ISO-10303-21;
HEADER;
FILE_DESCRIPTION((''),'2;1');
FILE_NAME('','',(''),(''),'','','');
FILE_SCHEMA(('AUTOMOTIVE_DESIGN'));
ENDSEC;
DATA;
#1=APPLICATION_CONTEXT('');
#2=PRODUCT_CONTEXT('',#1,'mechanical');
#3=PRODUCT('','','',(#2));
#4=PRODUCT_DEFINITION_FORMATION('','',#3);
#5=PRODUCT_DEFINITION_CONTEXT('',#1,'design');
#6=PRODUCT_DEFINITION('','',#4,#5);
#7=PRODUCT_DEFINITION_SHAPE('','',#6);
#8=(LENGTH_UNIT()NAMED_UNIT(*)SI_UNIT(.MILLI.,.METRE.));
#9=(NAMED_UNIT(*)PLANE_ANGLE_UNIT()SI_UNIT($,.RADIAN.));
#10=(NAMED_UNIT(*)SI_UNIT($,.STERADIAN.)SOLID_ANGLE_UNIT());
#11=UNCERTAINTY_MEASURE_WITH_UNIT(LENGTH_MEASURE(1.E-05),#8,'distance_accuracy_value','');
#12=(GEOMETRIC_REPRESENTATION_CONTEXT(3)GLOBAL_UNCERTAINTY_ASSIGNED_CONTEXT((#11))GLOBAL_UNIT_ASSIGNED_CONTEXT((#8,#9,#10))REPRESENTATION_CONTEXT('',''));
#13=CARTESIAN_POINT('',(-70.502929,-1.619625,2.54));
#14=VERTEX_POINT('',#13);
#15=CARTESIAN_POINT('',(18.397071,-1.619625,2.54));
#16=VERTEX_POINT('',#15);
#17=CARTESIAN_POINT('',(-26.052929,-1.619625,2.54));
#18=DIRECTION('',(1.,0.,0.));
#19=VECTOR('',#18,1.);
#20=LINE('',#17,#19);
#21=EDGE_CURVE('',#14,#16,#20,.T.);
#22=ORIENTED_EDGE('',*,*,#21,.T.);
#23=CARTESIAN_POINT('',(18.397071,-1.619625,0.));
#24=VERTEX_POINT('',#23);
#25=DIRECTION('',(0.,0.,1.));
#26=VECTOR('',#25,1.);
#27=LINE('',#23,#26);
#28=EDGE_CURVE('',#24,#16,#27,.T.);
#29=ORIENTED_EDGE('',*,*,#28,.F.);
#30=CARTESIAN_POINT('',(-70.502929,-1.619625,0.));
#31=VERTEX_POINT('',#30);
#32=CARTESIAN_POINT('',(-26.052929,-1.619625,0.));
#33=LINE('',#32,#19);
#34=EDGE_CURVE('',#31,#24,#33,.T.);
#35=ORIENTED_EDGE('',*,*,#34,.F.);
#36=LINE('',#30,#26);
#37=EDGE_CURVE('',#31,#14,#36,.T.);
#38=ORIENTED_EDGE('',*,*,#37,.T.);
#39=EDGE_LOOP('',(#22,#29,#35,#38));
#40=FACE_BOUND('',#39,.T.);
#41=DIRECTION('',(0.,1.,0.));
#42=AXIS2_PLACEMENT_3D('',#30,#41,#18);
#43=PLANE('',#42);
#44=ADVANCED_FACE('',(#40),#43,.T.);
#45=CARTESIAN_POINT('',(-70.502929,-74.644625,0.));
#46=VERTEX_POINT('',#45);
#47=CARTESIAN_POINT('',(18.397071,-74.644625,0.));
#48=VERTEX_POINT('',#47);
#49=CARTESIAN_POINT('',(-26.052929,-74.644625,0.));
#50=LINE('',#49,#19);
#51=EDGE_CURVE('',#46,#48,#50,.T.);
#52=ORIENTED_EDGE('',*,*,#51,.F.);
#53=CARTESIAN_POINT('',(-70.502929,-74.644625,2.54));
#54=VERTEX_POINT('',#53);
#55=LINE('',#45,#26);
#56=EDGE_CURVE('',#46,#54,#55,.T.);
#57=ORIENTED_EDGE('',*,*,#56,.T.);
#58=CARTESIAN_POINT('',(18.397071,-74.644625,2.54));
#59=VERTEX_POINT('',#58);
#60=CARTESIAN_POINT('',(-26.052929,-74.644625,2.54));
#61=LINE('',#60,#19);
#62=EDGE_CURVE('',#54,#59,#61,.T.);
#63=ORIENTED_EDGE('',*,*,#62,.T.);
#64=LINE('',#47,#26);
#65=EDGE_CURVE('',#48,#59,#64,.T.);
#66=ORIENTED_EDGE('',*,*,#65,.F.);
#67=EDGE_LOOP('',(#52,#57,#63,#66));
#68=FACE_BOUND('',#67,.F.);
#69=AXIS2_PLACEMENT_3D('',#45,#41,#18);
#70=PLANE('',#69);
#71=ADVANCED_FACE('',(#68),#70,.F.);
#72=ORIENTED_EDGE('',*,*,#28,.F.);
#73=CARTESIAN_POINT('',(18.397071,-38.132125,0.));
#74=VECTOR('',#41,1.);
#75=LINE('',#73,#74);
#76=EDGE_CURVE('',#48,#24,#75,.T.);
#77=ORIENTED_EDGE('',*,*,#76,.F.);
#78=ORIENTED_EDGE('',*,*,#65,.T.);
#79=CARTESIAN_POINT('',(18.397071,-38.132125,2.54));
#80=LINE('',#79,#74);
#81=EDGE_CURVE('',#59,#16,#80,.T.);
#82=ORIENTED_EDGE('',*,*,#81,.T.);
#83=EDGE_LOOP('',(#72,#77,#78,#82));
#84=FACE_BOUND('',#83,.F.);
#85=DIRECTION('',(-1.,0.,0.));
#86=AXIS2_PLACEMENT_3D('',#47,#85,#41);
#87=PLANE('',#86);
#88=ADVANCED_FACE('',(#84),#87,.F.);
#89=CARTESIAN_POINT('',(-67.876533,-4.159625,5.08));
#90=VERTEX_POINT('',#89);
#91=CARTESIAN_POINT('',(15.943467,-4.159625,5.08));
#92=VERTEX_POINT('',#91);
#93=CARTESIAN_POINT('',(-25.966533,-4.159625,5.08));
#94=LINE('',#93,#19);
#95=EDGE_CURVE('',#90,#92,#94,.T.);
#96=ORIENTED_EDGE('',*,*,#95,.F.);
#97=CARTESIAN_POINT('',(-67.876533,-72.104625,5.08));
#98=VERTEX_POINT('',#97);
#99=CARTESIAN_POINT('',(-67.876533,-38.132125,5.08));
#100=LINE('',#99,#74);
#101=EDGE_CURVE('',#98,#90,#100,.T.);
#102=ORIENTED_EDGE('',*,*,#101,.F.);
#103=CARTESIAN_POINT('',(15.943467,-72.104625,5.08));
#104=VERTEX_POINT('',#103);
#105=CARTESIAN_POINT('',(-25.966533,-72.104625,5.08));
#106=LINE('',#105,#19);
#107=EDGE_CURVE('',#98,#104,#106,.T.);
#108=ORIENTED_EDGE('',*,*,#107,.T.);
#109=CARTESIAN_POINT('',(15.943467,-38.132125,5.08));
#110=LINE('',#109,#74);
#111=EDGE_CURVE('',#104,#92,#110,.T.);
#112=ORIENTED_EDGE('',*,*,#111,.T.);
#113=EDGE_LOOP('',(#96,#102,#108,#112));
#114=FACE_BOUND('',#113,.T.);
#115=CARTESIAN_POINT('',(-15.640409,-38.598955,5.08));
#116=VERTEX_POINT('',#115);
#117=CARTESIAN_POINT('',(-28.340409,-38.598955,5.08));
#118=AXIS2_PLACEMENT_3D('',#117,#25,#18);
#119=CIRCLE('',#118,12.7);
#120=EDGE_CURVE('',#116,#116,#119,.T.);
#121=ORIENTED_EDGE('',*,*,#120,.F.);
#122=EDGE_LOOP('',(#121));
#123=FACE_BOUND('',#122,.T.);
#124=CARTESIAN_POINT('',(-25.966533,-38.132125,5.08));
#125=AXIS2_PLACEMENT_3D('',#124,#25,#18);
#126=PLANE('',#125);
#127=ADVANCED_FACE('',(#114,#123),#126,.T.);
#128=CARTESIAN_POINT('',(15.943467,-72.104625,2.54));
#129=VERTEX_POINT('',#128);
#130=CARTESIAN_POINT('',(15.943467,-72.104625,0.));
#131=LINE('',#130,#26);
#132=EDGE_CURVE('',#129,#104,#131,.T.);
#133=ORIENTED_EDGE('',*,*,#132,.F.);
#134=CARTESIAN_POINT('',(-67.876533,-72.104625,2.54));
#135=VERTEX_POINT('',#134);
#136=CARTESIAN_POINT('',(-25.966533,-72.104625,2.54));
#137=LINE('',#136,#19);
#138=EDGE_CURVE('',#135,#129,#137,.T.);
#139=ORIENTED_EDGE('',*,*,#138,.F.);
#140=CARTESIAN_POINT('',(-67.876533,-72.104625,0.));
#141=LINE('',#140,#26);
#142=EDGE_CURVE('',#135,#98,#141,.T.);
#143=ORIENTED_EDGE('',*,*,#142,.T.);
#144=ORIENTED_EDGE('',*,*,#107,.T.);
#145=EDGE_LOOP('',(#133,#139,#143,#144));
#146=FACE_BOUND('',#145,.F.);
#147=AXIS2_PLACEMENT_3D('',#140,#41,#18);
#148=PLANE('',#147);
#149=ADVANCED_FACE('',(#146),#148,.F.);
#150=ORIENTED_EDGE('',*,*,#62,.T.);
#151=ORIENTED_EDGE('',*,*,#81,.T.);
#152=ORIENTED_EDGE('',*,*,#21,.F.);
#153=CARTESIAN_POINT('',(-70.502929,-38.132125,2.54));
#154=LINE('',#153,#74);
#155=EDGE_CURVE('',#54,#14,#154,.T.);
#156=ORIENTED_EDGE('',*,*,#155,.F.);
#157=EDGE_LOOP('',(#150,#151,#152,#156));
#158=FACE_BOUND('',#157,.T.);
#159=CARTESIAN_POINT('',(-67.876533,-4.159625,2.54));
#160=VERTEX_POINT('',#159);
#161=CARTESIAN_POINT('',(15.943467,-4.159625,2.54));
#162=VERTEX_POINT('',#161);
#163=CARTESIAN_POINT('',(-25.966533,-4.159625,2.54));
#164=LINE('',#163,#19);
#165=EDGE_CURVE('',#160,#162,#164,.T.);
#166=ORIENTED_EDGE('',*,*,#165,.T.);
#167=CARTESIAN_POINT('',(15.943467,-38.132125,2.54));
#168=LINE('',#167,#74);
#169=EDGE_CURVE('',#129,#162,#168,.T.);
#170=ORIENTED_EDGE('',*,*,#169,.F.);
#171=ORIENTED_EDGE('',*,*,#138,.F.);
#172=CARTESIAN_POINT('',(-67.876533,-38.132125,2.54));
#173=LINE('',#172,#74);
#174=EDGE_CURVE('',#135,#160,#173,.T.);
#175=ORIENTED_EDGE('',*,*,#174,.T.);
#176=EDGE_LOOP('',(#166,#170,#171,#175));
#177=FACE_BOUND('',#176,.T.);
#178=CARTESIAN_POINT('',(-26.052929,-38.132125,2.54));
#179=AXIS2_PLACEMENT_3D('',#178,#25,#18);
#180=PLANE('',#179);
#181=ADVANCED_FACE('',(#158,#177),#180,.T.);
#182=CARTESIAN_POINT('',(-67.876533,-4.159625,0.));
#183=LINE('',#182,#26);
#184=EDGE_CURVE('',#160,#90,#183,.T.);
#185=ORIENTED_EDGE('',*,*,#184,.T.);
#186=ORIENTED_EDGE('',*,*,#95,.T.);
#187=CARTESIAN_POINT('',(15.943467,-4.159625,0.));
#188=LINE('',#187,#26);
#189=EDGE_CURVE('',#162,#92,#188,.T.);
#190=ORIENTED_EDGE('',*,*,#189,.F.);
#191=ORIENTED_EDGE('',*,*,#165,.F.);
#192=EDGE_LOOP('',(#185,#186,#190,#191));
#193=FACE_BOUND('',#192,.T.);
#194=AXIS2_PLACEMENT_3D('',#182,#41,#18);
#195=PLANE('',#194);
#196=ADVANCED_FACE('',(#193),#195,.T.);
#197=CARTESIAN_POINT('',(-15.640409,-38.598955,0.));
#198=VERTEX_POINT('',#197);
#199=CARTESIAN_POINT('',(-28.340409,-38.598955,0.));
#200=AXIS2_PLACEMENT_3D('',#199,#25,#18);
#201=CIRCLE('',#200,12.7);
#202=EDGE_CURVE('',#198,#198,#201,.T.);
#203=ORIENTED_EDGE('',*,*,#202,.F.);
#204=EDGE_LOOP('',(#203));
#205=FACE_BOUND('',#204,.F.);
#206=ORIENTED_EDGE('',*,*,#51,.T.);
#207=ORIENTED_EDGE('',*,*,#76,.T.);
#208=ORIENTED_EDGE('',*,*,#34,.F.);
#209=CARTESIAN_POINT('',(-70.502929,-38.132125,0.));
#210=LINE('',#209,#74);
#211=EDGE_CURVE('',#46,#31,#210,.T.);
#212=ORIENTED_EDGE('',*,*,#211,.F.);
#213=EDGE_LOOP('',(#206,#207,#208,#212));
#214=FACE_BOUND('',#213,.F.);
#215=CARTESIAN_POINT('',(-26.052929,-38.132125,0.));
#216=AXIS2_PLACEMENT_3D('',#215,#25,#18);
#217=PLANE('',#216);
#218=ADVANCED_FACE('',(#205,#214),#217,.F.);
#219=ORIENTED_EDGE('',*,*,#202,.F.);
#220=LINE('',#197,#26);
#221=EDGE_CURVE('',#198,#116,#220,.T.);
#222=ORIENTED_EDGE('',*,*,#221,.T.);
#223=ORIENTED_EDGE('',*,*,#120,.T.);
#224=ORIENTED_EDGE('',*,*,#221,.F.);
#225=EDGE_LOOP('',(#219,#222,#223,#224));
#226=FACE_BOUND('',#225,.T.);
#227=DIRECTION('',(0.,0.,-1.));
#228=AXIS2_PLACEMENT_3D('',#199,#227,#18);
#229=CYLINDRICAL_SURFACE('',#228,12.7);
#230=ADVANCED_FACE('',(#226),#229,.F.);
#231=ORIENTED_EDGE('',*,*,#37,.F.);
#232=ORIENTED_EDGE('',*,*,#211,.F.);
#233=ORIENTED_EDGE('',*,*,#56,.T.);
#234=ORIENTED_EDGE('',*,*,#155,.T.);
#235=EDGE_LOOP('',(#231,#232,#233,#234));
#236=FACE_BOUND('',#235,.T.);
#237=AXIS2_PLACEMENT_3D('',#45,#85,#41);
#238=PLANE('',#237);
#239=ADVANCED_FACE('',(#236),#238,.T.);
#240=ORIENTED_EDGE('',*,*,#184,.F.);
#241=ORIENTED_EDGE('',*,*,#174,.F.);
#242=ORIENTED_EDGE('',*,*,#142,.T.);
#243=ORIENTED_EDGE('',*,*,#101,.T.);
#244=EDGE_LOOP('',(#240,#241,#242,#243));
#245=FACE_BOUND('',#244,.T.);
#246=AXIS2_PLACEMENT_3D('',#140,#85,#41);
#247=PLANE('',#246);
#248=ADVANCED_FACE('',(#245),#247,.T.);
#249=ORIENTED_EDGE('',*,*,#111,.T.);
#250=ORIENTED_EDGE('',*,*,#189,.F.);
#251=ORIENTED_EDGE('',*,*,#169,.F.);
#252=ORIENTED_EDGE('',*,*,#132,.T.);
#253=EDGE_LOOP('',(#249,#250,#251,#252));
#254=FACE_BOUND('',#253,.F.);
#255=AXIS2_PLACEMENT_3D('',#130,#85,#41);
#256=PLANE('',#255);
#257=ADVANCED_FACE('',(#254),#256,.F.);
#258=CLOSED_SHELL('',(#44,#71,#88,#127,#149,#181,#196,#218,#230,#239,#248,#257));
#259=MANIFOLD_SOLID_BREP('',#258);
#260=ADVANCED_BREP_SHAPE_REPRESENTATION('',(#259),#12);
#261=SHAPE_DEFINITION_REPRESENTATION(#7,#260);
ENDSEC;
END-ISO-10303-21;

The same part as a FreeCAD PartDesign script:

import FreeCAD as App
import Part
import Sketcher

V = App.Vector
Q = App.Units.Quantity

doc = App.newDocument("Part")
body = doc.addObject("PartDesign::Body", "Body")

sketch1 = body.newObject("Sketcher::SketchObject", "Sketch")
sketch1.AttachmentSupport = (doc.getObject("XY_Plane"), [""])
sketch1.MapMode = "FlatFace"
sketch1.addGeometry([
    Part.LineSegment(V(-71, -2, 0), V(-71, -75, 0)),
    Part.LineSegment(V(-71, -75, 0), V(18, -75, 0)),
    Part.LineSegment(V(18, -75, 0), V(18, -2, 0)),
    Part.LineSegment(V(18, -2, 0), V(-71, -2, 0)),
    Part.LineSegment(V(16, -72, 0), V(-68, -72, 0)),
    Part.LineSegment(V(-68, -72, 0), V(-68, -4, 0)),
    Part.LineSegment(V(-68, -4, 0), V(16, -4, 0)),
    Part.LineSegment(V(16, -4, 0), V(16, -72, 0)),
], False)
sketch1.addConstraint([
    Sketcher.Constraint("Coincident", 0, 2, 1, 1),
    Sketcher.Constraint("Coincident", 1, 2, 2, 1),
    Sketcher.Constraint("Coincident", 2, 2, 3, 1),
    Sketcher.Constraint("Coincident", 3, 2, 0, 1),
    Sketcher.Constraint("Coincident", 4, 2, 5, 1),
    Sketcher.Constraint("Coincident", 5, 2, 6, 1),
    Sketcher.Constraint("Coincident", 6, 2, 7, 1),
    Sketcher.Constraint("Coincident", 7, 2, 4, 1),
    Sketcher.Constraint("Vertical", 0),
    Sketcher.Constraint("Horizontal", 1),
    Sketcher.Constraint("Vertical", 2),
    Sketcher.Constraint("Horizontal", 3),
    Sketcher.Constraint("Horizontal", 4),
    Sketcher.Constraint("Vertical", 5),
    Sketcher.Constraint("Horizontal", 6),
    Sketcher.Constraint("Vertical", 7),
    Sketcher.Constraint("DistanceX", 1, 1, 1, 2, Q("3.5 in")),
    Sketcher.Constraint("DistanceX", 4, 2, 4, 1, Q("3.3 in")),
    Sketcher.Constraint("DistanceY", 0, 2, 4, 2, Q("0.1 in")),
    Sketcher.Constraint("DistanceY", 5, 2, 3, 2, Q("0.1 in")),
    Sketcher.Constraint("DistanceY", 0, 2, 0, 1, Q("2.875 in")),
    Sketcher.Constraint("DistanceX", 0, 2, -1, 1, 70.502929),
    Sketcher.Constraint("DistanceY", 0, 2, -1, 1, 74.644625),
    Sketcher.Constraint("DistanceX", 4, 2, -1, 1, 67.876533),
])
pad1 = body.newObject("PartDesign::Pad", "Pad")
pad1.Profile = sketch1
pad1.Length = Q("0.1 in")

sketch2 = body.newObject("Sketcher::SketchObject", "Sketch001")
sketch2.AttachmentSupport = (doc.getObject("XY_Plane"), [""])
sketch2.MapMode = "FlatFace"
sketch2.addGeometry([
    Part.LineSegment(V(-68, -4, 0), V(-68, -72, 0)),
    Part.LineSegment(V(-68, -72, 0), V(16, -72, 0)),
    Part.LineSegment(V(16, -72, 0), V(16, -4, 0)),
    Part.LineSegment(V(16, -4, 0), V(-68, -4, 0)),
    Part.Circle(V(-28, -39, 0), V(0, 0, 1), 13),
], False)
sketch2.addConstraint([
    Sketcher.Constraint("Coincident", 0, 2, 1, 1),
    Sketcher.Constraint("Coincident", 1, 2, 2, 1),
    Sketcher.Constraint("Coincident", 2, 2, 3, 1),
    Sketcher.Constraint("Coincident", 3, 2, 0, 1),
    Sketcher.Constraint("Vertical", 0),
    Sketcher.Constraint("Horizontal", 1),
    Sketcher.Constraint("Vertical", 2),
    Sketcher.Constraint("Horizontal", 3),
    Sketcher.Constraint("Diameter", 4, Q("1 in")),
    Sketcher.Constraint("DistanceX", 1, 1, 1, 2, Q("3.3 in")),
    Sketcher.Constraint("DistanceY", 0, 2, 0, 1, Q("2.675 in")),
    Sketcher.Constraint("DistanceX", 4, 3, -1, 1, 28.340409),
    Sketcher.Constraint("DistanceY", 0, 2, 4, 3, 33.50567),
    Sketcher.Constraint("DistanceY", 4, 3, -1, 1, 38.598955),
    Sketcher.Constraint("DistanceX", 0, 2, -1, 1, 67.876533),
])
pad2 = body.newObject("PartDesign::Pad", "Pad001")
pad2.Profile = sketch2
pad2.Length = Q("0.2 in")

doc.recompute()
